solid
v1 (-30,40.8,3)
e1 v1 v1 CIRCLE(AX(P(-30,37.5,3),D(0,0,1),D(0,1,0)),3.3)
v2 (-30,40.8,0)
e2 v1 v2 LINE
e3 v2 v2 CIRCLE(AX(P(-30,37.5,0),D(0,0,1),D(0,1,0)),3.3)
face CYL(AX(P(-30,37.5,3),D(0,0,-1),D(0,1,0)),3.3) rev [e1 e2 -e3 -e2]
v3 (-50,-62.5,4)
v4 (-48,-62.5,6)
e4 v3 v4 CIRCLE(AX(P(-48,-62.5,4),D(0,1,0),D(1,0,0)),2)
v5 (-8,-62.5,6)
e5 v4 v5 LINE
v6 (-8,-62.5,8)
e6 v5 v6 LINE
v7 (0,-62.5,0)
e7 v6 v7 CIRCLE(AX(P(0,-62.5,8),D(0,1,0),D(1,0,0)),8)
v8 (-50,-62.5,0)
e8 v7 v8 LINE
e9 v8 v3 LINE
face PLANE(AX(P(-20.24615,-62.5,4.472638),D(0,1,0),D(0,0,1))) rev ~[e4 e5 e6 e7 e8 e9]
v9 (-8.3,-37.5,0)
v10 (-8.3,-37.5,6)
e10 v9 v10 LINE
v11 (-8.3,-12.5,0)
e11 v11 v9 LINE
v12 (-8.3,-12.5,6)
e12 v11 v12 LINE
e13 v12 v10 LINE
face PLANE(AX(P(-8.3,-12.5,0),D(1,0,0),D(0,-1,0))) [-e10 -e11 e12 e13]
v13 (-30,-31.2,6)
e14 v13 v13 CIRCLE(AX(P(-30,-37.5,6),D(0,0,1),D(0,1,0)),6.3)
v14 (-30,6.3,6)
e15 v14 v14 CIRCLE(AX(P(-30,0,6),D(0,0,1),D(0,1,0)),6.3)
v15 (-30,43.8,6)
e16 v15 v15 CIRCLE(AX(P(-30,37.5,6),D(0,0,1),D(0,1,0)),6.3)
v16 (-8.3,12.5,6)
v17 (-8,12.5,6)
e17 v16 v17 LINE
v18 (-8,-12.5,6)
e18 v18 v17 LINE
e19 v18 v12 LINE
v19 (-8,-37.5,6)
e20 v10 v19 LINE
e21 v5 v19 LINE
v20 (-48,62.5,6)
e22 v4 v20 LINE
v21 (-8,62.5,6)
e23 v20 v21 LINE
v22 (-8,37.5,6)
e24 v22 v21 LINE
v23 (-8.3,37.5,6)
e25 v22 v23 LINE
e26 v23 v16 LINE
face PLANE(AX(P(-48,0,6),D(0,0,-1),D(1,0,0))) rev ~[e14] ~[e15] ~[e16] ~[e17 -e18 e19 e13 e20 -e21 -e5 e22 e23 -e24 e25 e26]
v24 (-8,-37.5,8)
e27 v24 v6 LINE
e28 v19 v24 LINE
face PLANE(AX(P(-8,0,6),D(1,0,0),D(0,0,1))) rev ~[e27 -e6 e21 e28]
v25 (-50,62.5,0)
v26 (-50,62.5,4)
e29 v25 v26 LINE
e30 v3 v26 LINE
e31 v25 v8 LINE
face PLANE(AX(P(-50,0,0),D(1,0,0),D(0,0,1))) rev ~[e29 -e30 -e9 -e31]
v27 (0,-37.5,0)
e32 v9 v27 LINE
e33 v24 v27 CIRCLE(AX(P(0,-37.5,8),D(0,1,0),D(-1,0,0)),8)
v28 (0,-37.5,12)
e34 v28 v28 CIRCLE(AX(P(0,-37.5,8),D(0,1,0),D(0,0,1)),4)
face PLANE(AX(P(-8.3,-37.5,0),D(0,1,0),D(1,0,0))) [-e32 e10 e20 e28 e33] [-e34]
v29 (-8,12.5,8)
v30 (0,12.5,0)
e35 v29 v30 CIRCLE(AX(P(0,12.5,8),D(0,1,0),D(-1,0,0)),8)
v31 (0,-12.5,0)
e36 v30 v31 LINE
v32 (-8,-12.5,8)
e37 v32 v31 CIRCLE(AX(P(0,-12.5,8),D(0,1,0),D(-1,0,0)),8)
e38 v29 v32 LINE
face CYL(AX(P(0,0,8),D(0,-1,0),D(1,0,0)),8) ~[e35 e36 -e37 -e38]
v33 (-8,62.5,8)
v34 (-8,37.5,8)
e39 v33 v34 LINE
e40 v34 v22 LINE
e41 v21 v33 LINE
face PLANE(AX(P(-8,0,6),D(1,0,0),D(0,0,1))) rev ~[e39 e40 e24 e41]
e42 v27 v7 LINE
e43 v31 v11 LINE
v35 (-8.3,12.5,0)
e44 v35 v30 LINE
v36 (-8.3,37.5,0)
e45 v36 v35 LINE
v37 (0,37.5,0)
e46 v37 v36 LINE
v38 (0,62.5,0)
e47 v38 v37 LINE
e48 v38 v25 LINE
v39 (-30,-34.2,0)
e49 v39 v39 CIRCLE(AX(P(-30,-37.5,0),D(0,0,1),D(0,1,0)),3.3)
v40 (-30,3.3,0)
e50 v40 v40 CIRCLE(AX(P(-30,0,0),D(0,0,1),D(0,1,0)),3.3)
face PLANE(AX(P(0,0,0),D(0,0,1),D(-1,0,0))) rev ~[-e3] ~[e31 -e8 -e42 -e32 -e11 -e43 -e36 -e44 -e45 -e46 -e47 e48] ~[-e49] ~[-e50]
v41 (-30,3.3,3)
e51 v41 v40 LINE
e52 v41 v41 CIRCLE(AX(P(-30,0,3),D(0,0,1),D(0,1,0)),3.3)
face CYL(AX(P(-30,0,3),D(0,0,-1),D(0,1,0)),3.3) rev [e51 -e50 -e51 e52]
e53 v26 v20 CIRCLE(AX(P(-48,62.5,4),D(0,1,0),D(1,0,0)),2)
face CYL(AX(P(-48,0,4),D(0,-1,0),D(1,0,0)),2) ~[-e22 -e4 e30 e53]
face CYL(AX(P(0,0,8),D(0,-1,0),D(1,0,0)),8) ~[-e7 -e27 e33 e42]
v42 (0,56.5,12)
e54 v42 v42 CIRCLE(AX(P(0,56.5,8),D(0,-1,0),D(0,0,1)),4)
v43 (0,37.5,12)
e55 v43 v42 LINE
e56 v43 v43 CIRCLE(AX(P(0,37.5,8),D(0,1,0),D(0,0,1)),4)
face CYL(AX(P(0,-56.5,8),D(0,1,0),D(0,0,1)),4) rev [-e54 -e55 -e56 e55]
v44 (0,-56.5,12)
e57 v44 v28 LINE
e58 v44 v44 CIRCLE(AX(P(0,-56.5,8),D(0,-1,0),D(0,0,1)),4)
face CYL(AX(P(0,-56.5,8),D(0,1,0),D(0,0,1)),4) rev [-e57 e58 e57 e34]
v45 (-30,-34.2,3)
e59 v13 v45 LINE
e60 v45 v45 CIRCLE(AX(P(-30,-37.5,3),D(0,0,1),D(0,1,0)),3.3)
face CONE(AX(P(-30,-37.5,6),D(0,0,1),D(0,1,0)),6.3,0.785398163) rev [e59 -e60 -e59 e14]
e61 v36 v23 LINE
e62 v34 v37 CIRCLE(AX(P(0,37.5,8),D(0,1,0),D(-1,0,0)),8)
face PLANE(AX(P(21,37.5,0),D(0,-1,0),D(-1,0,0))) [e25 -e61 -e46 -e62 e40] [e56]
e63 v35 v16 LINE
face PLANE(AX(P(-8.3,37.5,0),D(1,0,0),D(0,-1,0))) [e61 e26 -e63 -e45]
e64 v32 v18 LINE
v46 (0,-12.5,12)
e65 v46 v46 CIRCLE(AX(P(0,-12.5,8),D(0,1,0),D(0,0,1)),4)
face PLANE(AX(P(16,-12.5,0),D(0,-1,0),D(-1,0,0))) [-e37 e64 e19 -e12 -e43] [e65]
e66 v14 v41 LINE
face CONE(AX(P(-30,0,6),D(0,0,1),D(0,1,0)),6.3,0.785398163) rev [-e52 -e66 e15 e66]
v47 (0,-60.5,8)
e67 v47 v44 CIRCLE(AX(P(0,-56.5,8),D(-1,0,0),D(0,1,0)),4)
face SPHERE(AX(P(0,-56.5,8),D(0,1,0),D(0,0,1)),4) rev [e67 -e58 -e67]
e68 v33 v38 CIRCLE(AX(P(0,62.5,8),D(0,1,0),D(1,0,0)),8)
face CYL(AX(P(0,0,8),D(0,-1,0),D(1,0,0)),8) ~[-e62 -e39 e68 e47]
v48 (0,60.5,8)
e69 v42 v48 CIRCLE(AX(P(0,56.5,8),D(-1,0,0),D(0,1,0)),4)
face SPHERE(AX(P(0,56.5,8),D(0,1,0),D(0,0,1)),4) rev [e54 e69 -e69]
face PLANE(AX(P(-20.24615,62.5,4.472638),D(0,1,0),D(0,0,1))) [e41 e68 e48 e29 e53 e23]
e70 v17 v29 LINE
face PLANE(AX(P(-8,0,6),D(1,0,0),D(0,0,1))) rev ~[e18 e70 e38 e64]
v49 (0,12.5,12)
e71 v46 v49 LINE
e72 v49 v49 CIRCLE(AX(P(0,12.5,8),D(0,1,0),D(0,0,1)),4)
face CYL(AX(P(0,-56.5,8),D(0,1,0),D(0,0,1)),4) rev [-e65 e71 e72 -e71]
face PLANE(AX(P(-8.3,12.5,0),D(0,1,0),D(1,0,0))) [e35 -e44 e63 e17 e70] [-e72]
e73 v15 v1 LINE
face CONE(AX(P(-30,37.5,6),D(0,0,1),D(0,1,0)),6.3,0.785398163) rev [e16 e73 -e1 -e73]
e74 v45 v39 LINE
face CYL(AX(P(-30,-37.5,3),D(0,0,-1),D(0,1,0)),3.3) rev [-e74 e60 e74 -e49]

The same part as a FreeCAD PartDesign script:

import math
import FreeCAD as App
import Part
import Sketcher
Q = App.Units.Quantity

doc = App.newDocument("Part")
body = doc.addObject("PartDesign::Body", "Body")

# Sketch on XZ plane
sketch1 = body.newObject("Sketcher::SketchObject", "Sketch")
sketch1.AttachmentSupport = (doc.getObject("XZ_Plane"), [""])
sketch1.MapMode = "FlatFace"
sketch1.addGeometry([
    Part.LineSegment(App.Vector(-50, 4, 0), App.Vector(-50, 0, 0)),  # 0
    Part.LineSegment(App.Vector(-50, 0, 0), App.Vector(0, 0, 0)),  # 1
    Part.ArcOfCircle(Part.Circle(App.Vector(0, 8, 0), App.Vector(0, 0, 1), 8), math.radians(-90), math.radians(180)),  # 2
    Part.LineSegment(App.Vector(-8, 8, 0), App.Vector(-8, 6, 0)),  # 3
    Part.LineSegment(App.Vector(-8, 6, 0), App.Vector(-48, 6, 0)),  # 4
    Part.ArcOfCircle(Part.Circle(App.Vector(-48, 4, 0), App.Vector(0, 0, 1), 2), math.radians(90), math.radians(180)),  # 5
], False)
sketch1.addConstraint([
    Sketcher.Constraint("Coincident", 0, 2, 1, 1),
    Sketcher.Constraint("Tangent", 1, 2, 2, 1),
    Sketcher.Constraint("Tangent", 2, 2, 3, 1),
    Sketcher.Constraint("Coincident", 3, 2, 4, 1),
    Sketcher.Constraint("Tangent", 4, 2, 5, 1),
    Sketcher.Constraint("Tangent", 5, 2, 0, 1),
    Sketcher.Constraint("Vertical", 0),
    Sketcher.Constraint("Horizontal", 1),
    Sketcher.Constraint("Vertical", 3),
    Sketcher.Constraint("Horizontal", 4),
    Sketcher.Constraint("Coincident", 1, 2, -1, 1),
    Sketcher.Constraint("Radius", 2, 8.0),
    Sketcher.Constraint("Radius", 5, 2.0),
    Sketcher.Constraint("DistanceX", 1, 1, 1, 2, 50.0),
    Sketcher.Constraint("DistanceY", 0, 2, 0, 1, 4.0),
])
pad1 = body.newObject("PartDesign::Pad", "Pad")
pad1.Profile = sketch1
pad1.Type = "TwoLengths"
pad1.Length = 62.5
pad1.Length2 = 62.5
pad1.Reversed = True

# Sketch on XY plane
sketch2 = body.newObject("Sketcher::SketchObject", "Sketch001")
sketch2.AttachmentSupport = (doc.getObject("XY_Plane"), [""])
sketch2.MapMode = "FlatFace"
sketch2.addGeometry([
    Part.LineSegment(App.Vector(21, 38, 0), App.Vector(-8, 38, 0)),  # 0
    Part.LineSegment(App.Vector(-8, 38, 0), App.Vector(-8, 12, 0)),  # 1
    Part.LineSegment(App.Vector(-8, 12, 0), App.Vector(16, 12, 0)),  # 2
    Part.LineSegment(App.Vector(16, 12, 0), App.Vector(16, -12, 0)),  # 3
    Part.LineSegment(App.Vector(16, -12, 0), App.Vector(-8, -12, 0)),  # 4
    Part.LineSegment(App.Vector(-8, -12, 0), App.Vector(-8, -38, 0)),  # 5
    Part.LineSegment(App.Vector(-8, -38, 0), App.Vector(21, -38, 0)),  # 6
    Part.LineSegment(App.Vector(21, -38, 0), App.Vector(21, 38, 0)),  # 7
], False)
sketch2.addConstraint([
    Sketcher.Constraint("Coincident", 0, 2, 1, 1),
    Sketcher.Constraint("Coincident", 1, 2, 2, 1),
    Sketcher.Constraint("Coincident", 2, 2, 3, 1),
    Sketcher.Constraint("Coincident", 3, 2, 4, 1),
    Sketcher.Constraint("Coincident", 4, 2, 5, 1),
    Sketcher.Constraint("Coincident", 5, 2, 6, 1),
    Sketcher.Constraint("Coincident", 6, 2, 7, 1),
    Sketcher.Constraint("Coincident", 7, 2, 0, 1),
    Sketcher.Constraint("Horizontal", 0),
    Sketcher.Constraint("Vertical", 1),
    Sketcher.Constraint("Horizontal", 2),
    Sketcher.Constraint("Vertical", 3),
    Sketcher.Constraint("Horizontal", 4),
    Sketcher.Constraint("Vertical", 5),
    Sketcher.Constraint("Horizontal", 6),
    Sketcher.Constraint("Vertical", 7),
    Sketcher.Constraint("Symmetric", 1, 2, 4, 2, -1),
    Sketcher.Constraint("Equal", 1, 3),
    Sketcher.Constraint("Equal", 3, 5),
    Sketcher.Constraint("DistanceY", 1, 2, 1, 1, 25.0),
    Sketcher.Constraint("DistanceX", 0, 2, 0, 1, 29.3),
    Sketcher.Constraint("DistanceX", 2, 1, 2, 2, 24.3),
    Sketcher.Constraint("DistanceX", -1, 1, 2, 2, 16.0),
])
pocket1 = body.newObject("PartDesign::Pocket", "Pocket")
pocket1.Profile = sketch2
pocket1.Length = 16
pocket1.Reversed = True

# Sketch on YZ plane
sketch3 = body.newObject("Sketcher::SketchObject", "Sketch002")
sketch3.AttachmentSupport = (doc.getObject("YZ_Plane"), [""])
sketch3.MapMode = "FlatFace"
sketch3.AttachmentOffset = App.Placement(App.Vector(0, 0, -30), App.Rotation())
sketch3.addGeometry([
    Part.LineSegment(App.Vector(43.8, 6, 0), App.Vector(37.5, 6, 0)),  # 0
    Part.LineSegment(App.Vector(37.5, 6, 0), App.Vector(37.5, 0, 0)),  # 1
    Part.LineSegment(App.Vector(37.5, 0, 0), App.Vector(40.8, 0, 0)),  # 2
    Part.LineSegment(App.Vector(40.8, 0, 0), App.Vector(40.8, 3, 0)),  # 3
    Part.LineSegment(App.Vector(40.8, 3, 0), App.Vector(43.8, 6, 0)),  # 4
], False)
sketch3.addGeometry(Part.LineSegment(App.Vector(37.5, 0, 0), App.Vector(37.5, 6, 0)), True)  # axis
sketch3.addConstraint([
    Sketcher.Constraint("Coincident", 0, 2, 1, 1),
    Sketcher.Constraint("Coincident", 1, 2, 2, 1),
    Sketcher.Constraint("Coincident", 2, 2, 3, 1),
    Sketcher.Constraint("Coincident", 3, 2, 4, 1),
    Sketcher.Constraint("Coincident", 4, 2, 0, 1),
    Sketcher.Constraint("Horizontal", 0),
    Sketcher.Constraint("Vertical", 1),
    Sketcher.Constraint("Horizontal", 2),
    Sketcher.Constraint("Vertical", 3),
    Sketcher.Constraint("Vertical", 5),
    Sketcher.Constraint("Coincident", 5, 1, 1, 2),
    Sketcher.Constraint("PointOnObject", 1, 2, -1),
    Sketcher.Constraint("Horizontal", 4, 2, 5, 2),
    Sketcher.Constraint("DistanceY", 1, 2, 1, 1, 6.0),
    Sketcher.Constraint("DistanceY", 3, 1, 3, 2, 3.0),
    Sketcher.Constraint("Angle", 4, Q("45 deg")),
    Sketcher.Constraint("DistanceX", 0, 2, 0, 1, 6.3),
    Sketcher.Constraint("DistanceX", -1, 1, 0, 2, 37.5),
])
groove = body.newObject("PartDesign::Groove", "Groove")
groove.Profile = sketch3
groove.ReferenceAxis = (sketch3, ["Axis0"])
groove.Angle = 360

# Sketch on YZ plane
sketch4 = body.newObject("Sketcher::SketchObject", "Sketch003")
sketch4.AttachmentSupport = (doc.getObject("YZ_Plane"), [""])
sketch4.MapMode = "FlatFace"
sketch4.AttachmentOffset = App.Placement(App.Vector(0, 0, -30), App.Rotation())
sketch4.addGeometry([
    Part.LineSegment(App.Vector(-31.2, 6, 0), App.Vector(-37.5, 6, 0)),  # 0
    Part.LineSegment(App.Vector(-37.5, 6, 0), App.Vector(-37.5, 0, 0)),  # 1
    Part.LineSegment(App.Vector(-37.5, 0, 0), App.Vector(-34.2, 0, 0)),  # 2
    Part.LineSegment(App.Vector(-34.2, 0, 0), App.Vector(-34.2, 3, 0)),  # 3
    Part.LineSegment(App.Vector(-34.2, 3, 0), App.Vector(-31.2, 6, 0)),  # 4
], False)
sketch4.addGeometry(Part.LineSegment(App.Vector(-37.5, 0, 0), App.Vector(-37.5, 6, 0)), True)  # axis
sketch4.addConstraint([
    Sketcher.Constraint("Coincident", 0, 2, 1, 1),
    Sketcher.Constraint("Coincident", 1, 2, 2, 1),
    Sketcher.Constraint("Coincident", 2, 2, 3, 1),
    Sketcher.Constraint("Coincident", 3, 2, 4, 1),
    Sketcher.Constraint("Coincident", 4, 2, 0, 1),
    Sketcher.Constraint("Horizontal", 0),
    Sketcher.Constraint("Vertical", 1),
    Sketcher.Constraint("Horizontal", 2),
    Sketcher.Constraint("Vertical", 3),
    Sketcher.Constraint("Vertical", 5),
    Sketcher.Constraint("Coincident", 5, 1, 1, 2),
    Sketcher.Constraint("PointOnObject", 1, 2, -1),
    Sketcher.Constraint("Horizontal", 4, 2, 5, 2),
    Sketcher.Constraint("DistanceY", 1, 2, 1, 1, 6.0),
    Sketcher.Constraint("DistanceY", 3, 1, 3, 2, 3.0),
    Sketcher.Constraint("Angle", 4, Q("45 deg")),
    Sketcher.Constraint("DistanceX", 0, 2, 0, 1, 6.3),
    Sketcher.Constraint("DistanceX", 0, 2, -1, 1, 37.5),
])
groove2 = body.newObject("PartDesign::Groove", "Groove001")
groove2.Profile = sketch4
groove2.ReferenceAxis = (sketch4, ["Axis0"])
groove2.Angle = 360

# Sketch on YZ plane
sketch5 = body.newObject("Sketcher::SketchObject", "Sketch004")
sketch5.AttachmentSupport = (doc.getObject("YZ_Plane"), [""])
sketch5.MapMode = "FlatFace"
sketch5.AttachmentOffset = App.Placement(App.Vector(0, 0, -30), App.Rotation())
sketch5.addGeometry([
    Part.LineSegment(App.Vector(6.3, 6, 0), App.Vector(0, 6, 0)),  # 0
    Part.LineSegment(App.Vector(0, 6, 0), App.Vector(0, 0, 0)),  # 1
    Part.LineSegment(App.Vector(0, 0, 0), App.Vector(3.3, 0, 0)),  # 2
    Part.LineSegment(App.Vector(3.3, 0, 0), App.Vector(3.3, 3, 0)),  # 3
    Part.LineSegment(App.Vector(3.3, 3, 0), App.Vector(6.3, 6, 0)),  # 4
], False)
sketch5.addConstraint([
    Sketcher.Constraint("Coincident", 0, 2, 1, 1),
    Sketcher.Constraint("Coincident", 1, 2, 2, 1),
    Sketcher.Constraint("Coincident", 2, 2, 3, 1),
    Sketcher.Constraint("Coincident", 3, 2, 4, 1),
    Sketcher.Constraint("Coincident", 4, 2, 0, 1),
    Sketcher.Constraint("Horizontal", 0),
    Sketcher.Constraint("Vertical", 1),
    Sketcher.Constraint("Horizontal", 2),
    Sketcher.Constraint("Vertical", 3),
    Sketcher.Constraint("Coincident", 1, 2, -1, 1),
    Sketcher.Constraint("DistanceY", 1, 2, 1, 1, 6.0),
    Sketcher.Constraint("DistanceY", 3, 1, 3, 2, 3.0),
    Sketcher.Constraint("Angle", 4, Q("45 deg")),
    Sketcher.Constraint("DistanceX", 0, 2, 0, 1, 6.3),
])
groove3 = body.newObject("PartDesign::Groove", "Groove002")
groove3.Profile = sketch5
groove3.ReferenceAxis = (sketch5, ["V_Axis"])
groove3.Angle = 360

# Sketch on YZ plane
sketch6 = body.newObject("Sketcher::SketchObject", "Sketch005")
sketch6.AttachmentSupport = (doc.getObject("YZ_Plane"), [""])
sketch6.MapMode = "FlatFace"
sketch6.addGeometry([
    Part.ArcOfCircle(Part.Circle(App.Vector(-56.5, 8, 0), App.Vector(0, 0, 1), 4), math.radians(90), math.radians(180)),
    Part.LineSegment(App.Vector(-60.5, 8, 0), App.Vector(60.5, 8, 0)),
    Part.ArcOfCircle(Part.Circle(App.Vector(56.5, 8, 0), App.Vector(0, 0, 1), 4), math.radians(0), math.radians(90)),
    Part.LineSegment(App.Vector(56.5, 12, 0), App.Vector(-56.5, 12, 0)),
], False)
sketch6.addGeometry(Part.LineSegment(App.Vector(60.5, 8, 0), App.Vector(-60.5, 8, 0)), True)  # axis
sketch6.addConstraint([
    Sketcher.Constraint("Coincident", 0, 2, 1, 1),
    Sketcher.Constraint("Coincident", 1, 2, 2, 1),
    Sketcher.Constraint("Tangent", 2, 2, 3, 1),
    Sketcher.Constraint("Tangent", 3, 2, 0, 1),
    Sketcher.Constraint("Horizontal", 1),
    Sketcher.Constraint("Horizontal", 3),
    Sketcher.Constraint("Horizontal", 4),
    Sketcher.Constraint("Coincident", 4, 1, 1, 2),
    Sketcher.Constraint("Equal", 0, 2),
    Sketcher.Constraint("Horizontal", 2, 3, 0, 2),
    Sketcher.Constraint("Equal", 1, 4),
    Sketcher.Constraint("Radius", 0, 4.0),
    Sketcher.Constraint("DistanceX", 1, 1, 1, 2, 121.0),
    Sketcher.Constraint("DistanceY", -1, 1, 0, 3, 8.0),
    Sketcher.Constraint("DistanceX", 0, 3, -1, 1, 56.5),
])
groove4 = body.newObject("PartDesign::Groove", "Groove003")
groove4.Profile = sketch6
groove4.ReferenceAxis = (sketch6, ["Axis0"])
groove4.Angle = 360

doc.recompute()
